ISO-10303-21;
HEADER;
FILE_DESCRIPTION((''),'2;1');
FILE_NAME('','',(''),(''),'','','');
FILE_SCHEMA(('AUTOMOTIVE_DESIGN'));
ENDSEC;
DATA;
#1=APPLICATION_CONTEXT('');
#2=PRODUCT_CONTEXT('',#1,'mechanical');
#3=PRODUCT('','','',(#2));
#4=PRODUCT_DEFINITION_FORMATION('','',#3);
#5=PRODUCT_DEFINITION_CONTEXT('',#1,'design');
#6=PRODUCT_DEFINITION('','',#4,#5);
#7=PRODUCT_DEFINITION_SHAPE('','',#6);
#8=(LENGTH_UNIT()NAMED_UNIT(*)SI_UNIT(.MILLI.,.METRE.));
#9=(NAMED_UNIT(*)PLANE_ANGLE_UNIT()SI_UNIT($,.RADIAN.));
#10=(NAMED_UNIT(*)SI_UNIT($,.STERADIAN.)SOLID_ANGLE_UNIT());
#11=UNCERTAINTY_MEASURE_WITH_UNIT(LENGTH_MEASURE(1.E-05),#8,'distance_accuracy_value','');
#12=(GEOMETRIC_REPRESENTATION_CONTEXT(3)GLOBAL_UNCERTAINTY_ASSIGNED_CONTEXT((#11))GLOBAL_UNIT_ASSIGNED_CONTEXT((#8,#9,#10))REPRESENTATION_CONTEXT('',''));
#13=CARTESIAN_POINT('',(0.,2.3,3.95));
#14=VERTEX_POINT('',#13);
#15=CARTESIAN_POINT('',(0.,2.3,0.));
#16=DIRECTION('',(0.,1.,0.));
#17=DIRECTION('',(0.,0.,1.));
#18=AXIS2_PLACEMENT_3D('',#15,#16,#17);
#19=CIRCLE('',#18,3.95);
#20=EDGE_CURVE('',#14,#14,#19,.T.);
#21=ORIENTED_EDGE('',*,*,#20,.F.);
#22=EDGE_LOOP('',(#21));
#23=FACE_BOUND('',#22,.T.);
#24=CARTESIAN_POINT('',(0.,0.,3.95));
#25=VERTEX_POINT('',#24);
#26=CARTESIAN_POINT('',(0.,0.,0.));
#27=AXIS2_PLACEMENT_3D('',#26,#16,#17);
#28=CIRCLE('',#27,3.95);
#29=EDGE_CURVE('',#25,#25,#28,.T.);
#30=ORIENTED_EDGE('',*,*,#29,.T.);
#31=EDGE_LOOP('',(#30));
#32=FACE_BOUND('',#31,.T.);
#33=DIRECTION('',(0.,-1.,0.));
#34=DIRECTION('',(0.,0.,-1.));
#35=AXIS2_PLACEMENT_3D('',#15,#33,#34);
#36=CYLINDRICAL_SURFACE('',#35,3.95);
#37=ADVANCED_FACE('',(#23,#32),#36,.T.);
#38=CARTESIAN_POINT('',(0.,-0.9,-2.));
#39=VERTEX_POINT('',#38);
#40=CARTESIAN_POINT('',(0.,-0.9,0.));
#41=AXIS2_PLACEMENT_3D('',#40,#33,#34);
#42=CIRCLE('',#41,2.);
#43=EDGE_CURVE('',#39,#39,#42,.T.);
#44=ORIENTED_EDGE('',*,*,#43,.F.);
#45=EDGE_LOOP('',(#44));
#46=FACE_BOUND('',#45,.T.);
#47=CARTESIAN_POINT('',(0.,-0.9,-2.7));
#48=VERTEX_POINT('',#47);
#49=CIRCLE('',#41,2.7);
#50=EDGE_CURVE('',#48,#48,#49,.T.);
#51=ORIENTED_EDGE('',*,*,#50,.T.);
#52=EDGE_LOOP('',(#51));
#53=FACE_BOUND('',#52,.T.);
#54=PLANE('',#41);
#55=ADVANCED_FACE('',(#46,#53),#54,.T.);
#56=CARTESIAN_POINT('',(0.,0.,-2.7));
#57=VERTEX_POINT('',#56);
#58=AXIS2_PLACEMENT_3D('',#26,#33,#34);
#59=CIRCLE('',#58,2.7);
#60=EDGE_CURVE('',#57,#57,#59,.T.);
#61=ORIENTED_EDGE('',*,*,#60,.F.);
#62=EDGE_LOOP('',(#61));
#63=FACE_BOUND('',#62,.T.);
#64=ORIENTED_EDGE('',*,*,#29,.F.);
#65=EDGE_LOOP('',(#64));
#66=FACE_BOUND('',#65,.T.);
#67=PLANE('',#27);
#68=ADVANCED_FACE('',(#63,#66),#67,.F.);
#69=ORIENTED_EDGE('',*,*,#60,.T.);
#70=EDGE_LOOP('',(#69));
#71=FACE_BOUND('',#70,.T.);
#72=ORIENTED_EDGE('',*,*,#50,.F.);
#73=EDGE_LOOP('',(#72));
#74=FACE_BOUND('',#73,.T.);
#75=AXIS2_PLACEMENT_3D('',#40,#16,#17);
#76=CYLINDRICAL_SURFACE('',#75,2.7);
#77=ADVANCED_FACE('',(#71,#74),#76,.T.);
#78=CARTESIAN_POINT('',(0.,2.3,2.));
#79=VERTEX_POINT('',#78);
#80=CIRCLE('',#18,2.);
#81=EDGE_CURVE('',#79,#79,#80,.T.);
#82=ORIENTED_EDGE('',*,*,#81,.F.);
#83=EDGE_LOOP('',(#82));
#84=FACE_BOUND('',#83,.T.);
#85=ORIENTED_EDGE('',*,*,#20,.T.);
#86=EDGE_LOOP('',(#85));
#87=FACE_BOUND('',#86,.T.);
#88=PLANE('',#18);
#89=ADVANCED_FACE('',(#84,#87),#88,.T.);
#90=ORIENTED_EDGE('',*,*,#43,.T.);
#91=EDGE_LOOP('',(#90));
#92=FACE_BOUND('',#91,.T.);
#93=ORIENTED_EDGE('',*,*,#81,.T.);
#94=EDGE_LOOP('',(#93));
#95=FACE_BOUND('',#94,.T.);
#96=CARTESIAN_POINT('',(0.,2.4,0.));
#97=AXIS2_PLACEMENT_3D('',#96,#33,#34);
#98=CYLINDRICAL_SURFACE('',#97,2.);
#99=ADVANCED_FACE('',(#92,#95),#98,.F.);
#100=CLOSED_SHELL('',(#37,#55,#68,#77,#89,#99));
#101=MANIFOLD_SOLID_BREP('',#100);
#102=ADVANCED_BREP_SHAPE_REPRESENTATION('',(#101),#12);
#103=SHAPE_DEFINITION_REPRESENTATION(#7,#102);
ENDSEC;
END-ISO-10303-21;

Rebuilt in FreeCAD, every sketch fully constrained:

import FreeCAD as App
import Part
import Sketcher

V = App.Vector

doc = App.newDocument("Part")
body = doc.addObject("PartDesign::Body", "Body")

sketch1 = body.newObject("Sketcher::SketchObject", "Sketch")
sketch1.AttachmentSupport = (doc.getObject("XZ_Plane"), [""])
sketch1.MapMode = "FlatFace"
sketch1.addGeometry(Part.Circle(V(0, 0, 0), V(0, 0, 1), 4), False)
sketch1.addConstraint(Sketcher.Constraint("Coincident", 0, 3, -1, 1))
sketch1.addConstraint(Sketcher.Constraint("Diameter", 0, 7.9))
pad1 = body.newObject("PartDesign::Pad", "Pad")
pad1.Profile = sketch1
pad1.Length = 2.3
pad1.Reversed = True

sketch2 = body.newObject("Sketcher::SketchObject", "Sketch001")
sketch2.AttachmentSupport = (doc.getObject("XZ_Plane"), [""])
sketch2.MapMode = "FlatFace"
sketch2.addGeometry(Part.Circle(V(0, 0, 0), V(0, 0, 1), 2.7), False)
sketch2.addConstraint(Sketcher.Constraint("Coincident", 0, 3, -1, 1))
sketch2.addConstraint(Sketcher.Constraint("Diameter", 0, 5.4))
pad2 = body.newObject("PartDesign::Pad", "Pad001")
pad2.Profile = sketch2
pad2.Length = 0.9

sketch3 = body.newObject("Sketcher::SketchObject", "Sketch002")
sketch3.AttachmentSupport = (doc.getObject("XZ_Plane"), [""])
sketch3.MapMode = "FlatFace"
sketch3.AttachmentOffset = App.Placement(V(0, 0, 0.9), App.Rotation())
sketch3.addGeometry(Part.Circle(V(0, 0, 0), V(0, 0, 1), 2), False)
sketch3.addConstraint(Sketcher.Constraint("Coincident", 0, 3, -1, 1))
sketch3.addConstraint(Sketcher.Constraint("Diameter", 0, 4.0))
pocket1 = body.newObject("PartDesign::Pocket", "Pocket")
pocket1.Profile = sketch3
pocket1.Length = 3.3

doc.recompute()
